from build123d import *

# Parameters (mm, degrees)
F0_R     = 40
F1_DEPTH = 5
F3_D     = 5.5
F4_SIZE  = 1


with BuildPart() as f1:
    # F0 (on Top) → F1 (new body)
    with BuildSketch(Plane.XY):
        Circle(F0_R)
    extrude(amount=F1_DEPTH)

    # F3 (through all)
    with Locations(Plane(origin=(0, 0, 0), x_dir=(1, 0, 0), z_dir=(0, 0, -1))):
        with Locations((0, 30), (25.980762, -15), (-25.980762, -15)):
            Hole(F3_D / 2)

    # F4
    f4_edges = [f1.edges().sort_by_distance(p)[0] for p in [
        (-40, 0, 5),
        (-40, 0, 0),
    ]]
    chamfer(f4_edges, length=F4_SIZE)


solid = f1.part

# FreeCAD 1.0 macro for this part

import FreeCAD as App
import Part
import Sketcher
Q = App.Units.Quantity


def edges_at(feature, points):
    """Names of the edges that pass closest to the given points."""
    edges = feature.Shape.Edges
    near = lambda p: min(range(len(edges)), key=lambda i: edges[i].distToShape(Part.Vertex(*p))[0])
    return sorted({f"Edge{near(p) + 1}" for p in points})

doc = App.newDocument("Part")
body = doc.addObject("PartDesign::Body", "Body")

# Sketch on XY plane
sketch1 = body.newObject("Sketcher::SketchObject", "Sketch")
sketch1.AttachmentSupport = (doc.getObject("XY_Plane"), [""])
sketch1.MapMode = "FlatFace"
sketch1.addGeometry(Part.Circle(App.Vector(0, 0, 0), App.Vector(0, 0, 1), 40), False)
sketch1.addConstraint(Sketcher.Constraint("Coincident", 0, 3, -1, 1))
sketch1.addConstraint(Sketcher.Constraint("Diameter", 0, Q("80 mm")))
pad1 = body.newObject("PartDesign::Pad", "Pad")
pad1.Profile = sketch1
pad1.Length = 5

# Sketch on XY plane
sketch2 = body.newObject("Sketcher::SketchObject", "Sketch001")
sketch2.AttachmentSupport = (doc.getObject("XY_Plane"), [""])
sketch2.MapMode = "FlatFace"
sketch2.addGeometry(Part.Circle(App.Vector(0, -30, 0), App.Vector(0, 0, 1), 2.8), False)
sketch2.addGeometry(Part.Circle(App.Vector(26, 15, 0), App.Vector(0, 0, 1), 2.8), False)
sketch2.addGeometry(Part.Circle(App.Vector(-26, 15, 0), App.Vector(0, 0, 1), 2.8), False)
sketch2.addConstraint(Sketcher.Constraint("Equal", 0, 1))
sketch2.addConstraint(Sketcher.Constraint("Equal", 1, 2))
sketch2.addConstraint(Sketcher.Constraint("Symmetric", 1, 3, 2, 3, -2))
sketch2.addConstraint(Sketcher.Constraint("PointOnObject", 0, 3, -2))
sketch2.addConstraint(Sketcher.Constraint("Diameter", 0, Q("5.5 mm")))
sketch2.addConstraint(Sketcher.Constraint("DistanceY", 0, 3, -1, 1, Q("30 mm")))
sketch2.addConstraint(Sketcher.Constraint("DistanceY", -1, 1, 1, 3, Q("15 mm")))
sketch2.addConstraint(Sketcher.Constraint("DistanceX", -1, 1, 1, 3, Q("25.980762 mm")))
doc.recompute()
hole = body.newObject("PartDesign::Hole", "Hole")
hole.Profile = sketch2
hole.ThreadType = "None"
hole.Diameter = 5.5
hole.DepthType = "ThroughAll"
hole.Reversed = True
doc.recompute()

chamfer = body.newObject("PartDesign::Chamfer", "Chamfer")
chamfer.Base = (hole, edges_at(hole, [(-40, 0, 5), (-40, 0, 0)]))
chamfer.Size = 1

doc.recompute()
